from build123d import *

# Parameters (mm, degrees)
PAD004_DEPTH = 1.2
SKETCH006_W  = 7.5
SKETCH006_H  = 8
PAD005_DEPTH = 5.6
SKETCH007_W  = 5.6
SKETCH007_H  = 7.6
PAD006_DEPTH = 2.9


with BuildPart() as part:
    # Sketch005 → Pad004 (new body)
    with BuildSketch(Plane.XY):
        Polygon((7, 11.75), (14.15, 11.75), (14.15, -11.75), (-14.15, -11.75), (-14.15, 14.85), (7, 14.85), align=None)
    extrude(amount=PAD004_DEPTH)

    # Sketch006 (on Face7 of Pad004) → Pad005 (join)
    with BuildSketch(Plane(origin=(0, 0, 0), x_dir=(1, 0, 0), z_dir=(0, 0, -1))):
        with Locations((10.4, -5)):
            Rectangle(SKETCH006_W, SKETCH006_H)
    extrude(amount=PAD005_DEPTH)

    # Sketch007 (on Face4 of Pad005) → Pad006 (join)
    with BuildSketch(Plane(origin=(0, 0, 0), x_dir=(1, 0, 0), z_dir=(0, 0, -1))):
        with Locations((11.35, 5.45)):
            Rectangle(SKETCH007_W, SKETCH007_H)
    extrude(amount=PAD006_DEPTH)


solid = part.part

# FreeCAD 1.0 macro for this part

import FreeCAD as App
import Part
import Sketcher
from FreeCAD import Vector

doc = App.newDocument("Part")
body = doc.addObject("PartDesign::Body", "Body")

# Sketch on XY plane
sketch1 = body.newObject("Sketcher::SketchObject", "Sketch")
sketch1.AttachmentSupport = (doc.getObject("XY_Plane"), [""])
sketch1.MapMode = "FlatFace"
sketch1.addGeometry([
    Part.LineSegment(Vector(14.2, 11.8, 0), Vector(7, 11.8, 0)),  # 0
    Part.LineSegment(Vector(7, 11.8, 0), Vector(7, 14.8, 0)),  # 1
    Part.LineSegment(Vector(7, 14.8, 0), Vector(-14.2, 14.8, 0)),  # 2
    Part.LineSegment(Vector(-14.2, 14.8, 0), Vector(-14.2, -11.8, 0)),  # 3
    Part.LineSegment(Vector(-14.2, -11.8, 0), Vector(14.2, -11.8, 0)),  # 4
    Part.LineSegment(Vector(14.2, -11.8, 0), Vector(14.2, 11.8, 0)),  # 5
], False)
sketch1.addConstraint([
    Sketcher.Constraint("Coincident", 0, 2, 1, 1),
    Sketcher.Constraint("Coincident", 1, 2, 2, 1),
    Sketcher.Constraint("Coincident", 2, 2, 3, 1),
    Sketcher.Constraint("Coincident", 3, 2, 4, 1),
    Sketcher.Constraint("Coincident", 4, 2, 5, 1),
    Sketcher.Constraint("Coincident", 5, 2, 0, 1),
    Sketcher.Constraint("Horizontal", 0),
    Sketcher.Constraint("Vertical", 1),
    Sketcher.Constraint("Horizontal", 2),
    Sketcher.Constraint("Vertical", 3),
    Sketcher.Constraint("Horizontal", 4),
    Sketcher.Constraint("Vertical", 5),
    Sketcher.Constraint("Symmetric", 3, 2, 5, 2, -1, 1),
    Sketcher.Constraint("DistanceX", 4, 1, 4, 2, 28.3),
    Sketcher.Constraint("DistanceY", 1, 1, 1, 2, 3.1),
    Sketcher.Constraint("DistanceY", 3, 2, 3, 1, 26.6),
    Sketcher.Constraint("DistanceX", -1, 1, 0, 2, 7.0),
])
pad1 = body.newObject("PartDesign::Pad", "Pad")
pad1.Profile = sketch1
pad1.Length = 1.2

# Sketch on XY plane
sketch2 = body.newObject("Sketcher::SketchObject", "Sketch001")
sketch2.AttachmentSupport = (doc.getObject("XY_Plane"), [""])
sketch2.MapMode = "FlatFace"
sketch2.addGeometry([
    Part.LineSegment(Vector(7, 1, 0), Vector(7, 9, 0)),
    Part.LineSegment(Vector(7, 9, 0), Vector(14, 9, 0)),
    Part.LineSegment(Vector(14, 9, 0), Vector(14, 1, 0)),
    Part.LineSegment(Vector(14, 1, 0), Vector(7, 1, 0)),
], False)
sketch2.addConstraint([
    Sketcher.Constraint("Coincident", 0, 2, 1, 1),
    Sketcher.Constraint("Coincident", 1, 2, 2, 1),
    Sketcher.Constraint("Coincident", 2, 2, 3, 1),
    Sketcher.Constraint("Coincident", 3, 2, 0, 1),
    Sketcher.Constraint("Vertical", 0),
    Sketcher.Constraint("Horizontal", 1),
    Sketcher.Constraint("Vertical", 2),
    Sketcher.Constraint("Horizontal", 3),
    Sketcher.Constraint("DistanceY", 0, 1, 0, 2, 8.0),
    Sketcher.Constraint("DistanceX", 1, 1, 1, 2, 7.5),
    Sketcher.Constraint("DistanceY", -1, 1, 0, 2, 9.0),
    Sketcher.Constraint("DistanceX", -1, 1, 0, 2, 6.65),
])
pad2 = body.newObject("PartDesign::Pad", "Pad001")
pad2.Profile = sketch2
pad2.Length = 5.6
pad2.Reversed = True

# Sketch on XY plane
sketch3 = body.newObject("Sketcher::SketchObject", "Sketch002")
sketch3.AttachmentSupport = (doc.getObject("XY_Plane"), [""])
sketch3.MapMode = "FlatFace"
sketch3.addGeometry([
    Part.LineSegment(Vector(9, -9, 0), Vector(9, -2, 0)),
    Part.LineSegment(Vector(9, -2, 0), Vector(14, -2, 0)),
    Part.LineSegment(Vector(14, -2, 0), Vector(14, -9, 0)),
    Part.LineSegment(Vector(14, -9, 0), Vector(9, -9, 0)),
], False)
sketch3.addConstraint([
    Sketcher.Constraint("Coincident", 0, 2, 1, 1),
    Sketcher.Constraint("Coincident", 1, 2, 2, 1),
    Sketcher.Constraint("Coincident", 2, 2, 3, 1),
    Sketcher.Constraint("Coincident", 3, 2, 0, 1),
    Sketcher.Constraint("Vertical", 0),
    Sketcher.Constraint("Horizontal", 1),
    Sketcher.Constraint("Vertical", 2),
    Sketcher.Constraint("Horizontal", 3),
    Sketcher.Constraint("DistanceX", 1, 1, 1, 2, 5.6),
    Sketcher.Constraint("DistanceY", 0, 1, 0, 2, 7.6),
    Sketcher.Constraint("DistanceX", -1, 1, 0, 2, 8.55),
    Sketcher.Constraint("DistanceY", 0, 2, -1, 1, 1.65),
])
pad3 = body.newObject("PartDesign::Pad", "Pad002")
pad3.Profile = sketch3
pad3.Length = 2.9
pad3.Reversed = True

doc.recompute()
